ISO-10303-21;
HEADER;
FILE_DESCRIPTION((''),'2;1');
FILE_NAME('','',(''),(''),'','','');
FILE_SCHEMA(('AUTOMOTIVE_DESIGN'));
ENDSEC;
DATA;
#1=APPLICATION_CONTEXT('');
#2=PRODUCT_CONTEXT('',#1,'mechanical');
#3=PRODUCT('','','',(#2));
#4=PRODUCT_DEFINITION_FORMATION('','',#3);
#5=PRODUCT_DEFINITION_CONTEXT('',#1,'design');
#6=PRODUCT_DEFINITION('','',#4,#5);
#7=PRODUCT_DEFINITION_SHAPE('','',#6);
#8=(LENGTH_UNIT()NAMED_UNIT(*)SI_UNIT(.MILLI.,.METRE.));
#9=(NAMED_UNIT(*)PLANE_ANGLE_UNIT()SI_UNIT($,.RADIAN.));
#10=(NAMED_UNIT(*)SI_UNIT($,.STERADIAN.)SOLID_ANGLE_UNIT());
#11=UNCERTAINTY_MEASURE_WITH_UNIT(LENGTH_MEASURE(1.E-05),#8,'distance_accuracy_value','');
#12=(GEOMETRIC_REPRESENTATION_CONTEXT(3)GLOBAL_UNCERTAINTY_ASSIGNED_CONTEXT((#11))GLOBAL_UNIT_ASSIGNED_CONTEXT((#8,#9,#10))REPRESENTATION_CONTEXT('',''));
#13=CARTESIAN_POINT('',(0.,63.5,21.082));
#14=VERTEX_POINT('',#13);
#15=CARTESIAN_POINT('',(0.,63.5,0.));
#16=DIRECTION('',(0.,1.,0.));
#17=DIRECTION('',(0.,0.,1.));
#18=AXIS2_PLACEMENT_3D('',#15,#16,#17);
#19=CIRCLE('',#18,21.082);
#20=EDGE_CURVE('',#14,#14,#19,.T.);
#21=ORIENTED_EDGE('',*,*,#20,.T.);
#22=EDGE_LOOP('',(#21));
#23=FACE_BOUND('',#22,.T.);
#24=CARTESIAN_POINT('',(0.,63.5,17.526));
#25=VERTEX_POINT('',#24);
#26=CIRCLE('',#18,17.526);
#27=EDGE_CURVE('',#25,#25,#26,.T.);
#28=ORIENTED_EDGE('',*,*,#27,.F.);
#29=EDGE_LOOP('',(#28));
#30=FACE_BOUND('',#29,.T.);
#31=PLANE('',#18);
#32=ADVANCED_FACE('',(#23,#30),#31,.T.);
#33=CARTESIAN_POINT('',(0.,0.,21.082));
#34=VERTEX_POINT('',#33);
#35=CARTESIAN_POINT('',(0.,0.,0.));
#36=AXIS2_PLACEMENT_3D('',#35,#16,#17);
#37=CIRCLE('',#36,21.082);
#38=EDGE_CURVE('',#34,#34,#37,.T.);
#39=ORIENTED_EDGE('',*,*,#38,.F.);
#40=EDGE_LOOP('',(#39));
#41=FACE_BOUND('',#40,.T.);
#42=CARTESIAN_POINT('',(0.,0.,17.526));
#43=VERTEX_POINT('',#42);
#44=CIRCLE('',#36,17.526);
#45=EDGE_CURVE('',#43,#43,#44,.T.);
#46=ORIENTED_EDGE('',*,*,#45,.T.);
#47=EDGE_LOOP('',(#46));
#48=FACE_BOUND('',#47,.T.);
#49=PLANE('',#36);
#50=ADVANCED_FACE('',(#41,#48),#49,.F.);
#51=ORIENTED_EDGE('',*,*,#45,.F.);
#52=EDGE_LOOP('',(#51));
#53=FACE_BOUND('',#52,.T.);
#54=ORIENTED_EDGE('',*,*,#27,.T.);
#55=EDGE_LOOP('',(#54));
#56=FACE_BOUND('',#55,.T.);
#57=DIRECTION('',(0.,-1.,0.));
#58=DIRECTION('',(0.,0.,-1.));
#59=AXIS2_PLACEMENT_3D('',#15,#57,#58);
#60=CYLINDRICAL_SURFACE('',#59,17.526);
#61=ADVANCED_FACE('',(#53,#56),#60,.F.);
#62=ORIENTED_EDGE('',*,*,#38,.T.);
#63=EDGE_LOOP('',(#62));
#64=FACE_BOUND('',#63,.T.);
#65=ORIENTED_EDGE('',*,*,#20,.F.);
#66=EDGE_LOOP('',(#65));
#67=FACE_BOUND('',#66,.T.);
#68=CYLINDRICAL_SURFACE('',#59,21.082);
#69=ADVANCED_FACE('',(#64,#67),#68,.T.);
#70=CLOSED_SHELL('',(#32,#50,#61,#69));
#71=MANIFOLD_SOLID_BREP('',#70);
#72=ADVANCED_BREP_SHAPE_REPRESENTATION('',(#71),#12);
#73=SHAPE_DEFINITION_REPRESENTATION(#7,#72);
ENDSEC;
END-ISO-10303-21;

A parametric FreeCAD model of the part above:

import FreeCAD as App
import Part
import Sketcher
from FreeCAD import Vector
Q = App.Units.Quantity

doc = App.newDocument("Part")
params = doc.addObject("Spreadsheet::Sheet", "Params")
for row, (alias, value) in enumerate([
    ("sketch1_diameter", "1.66 in"),
    ("sketch1_diameter2", "1.38 in"),
    ("pad1_length", "2.5 in"),
], start=1):
    params.set(f"A{row}", alias)
    params.set(f"B{row}", "=" + value)
    params.setAlias(f"B{row}", alias)

body = doc.addObject("PartDesign::Body", "Body")

# Sketch on XZ plane
sketch1 = doc.addObject("Sketcher::SketchObject", "Sketch")
body.addObject(sketch1)
sketch1.AttachmentSupport = (doc.XZ_Plane, [""])
sketch1.MapMode = "FlatFace"
sketch1.addGeometry(Part.Circle(Vector(0, 0, 0), Vector(0, 0, 1), 21.082), False)
sketch1.addGeometry(Part.Circle(Vector(0, 0, 0), Vector(0, 0, 1), 17.526), False)
sketch1.addConstraint(Sketcher.Constraint("Coincident", 0, 3, -1, 1))
sketch1.addConstraint(Sketcher.Constraint("Coincident", 1, 3, -1, 1))
sketch1.addConstraint(Sketcher.Constraint("Diameter", 0, Q("1.66 in")))
sketch1.addConstraint(Sketcher.Constraint("Diameter", 1, Q("1.38 in")))
sketch1.setExpression("Constraints[2]", "Params.sketch1_diameter")
sketch1.setExpression("Constraints[3]", "Params.sketch1_diameter2")
pad1 = doc.addObject("PartDesign::Pad", "Pad")
body.addObject(pad1)
pad1.Profile = sketch1
pad1.setExpression("Length", "Params.pad1_length")
pad1.Reversed = True

doc.recompute()
